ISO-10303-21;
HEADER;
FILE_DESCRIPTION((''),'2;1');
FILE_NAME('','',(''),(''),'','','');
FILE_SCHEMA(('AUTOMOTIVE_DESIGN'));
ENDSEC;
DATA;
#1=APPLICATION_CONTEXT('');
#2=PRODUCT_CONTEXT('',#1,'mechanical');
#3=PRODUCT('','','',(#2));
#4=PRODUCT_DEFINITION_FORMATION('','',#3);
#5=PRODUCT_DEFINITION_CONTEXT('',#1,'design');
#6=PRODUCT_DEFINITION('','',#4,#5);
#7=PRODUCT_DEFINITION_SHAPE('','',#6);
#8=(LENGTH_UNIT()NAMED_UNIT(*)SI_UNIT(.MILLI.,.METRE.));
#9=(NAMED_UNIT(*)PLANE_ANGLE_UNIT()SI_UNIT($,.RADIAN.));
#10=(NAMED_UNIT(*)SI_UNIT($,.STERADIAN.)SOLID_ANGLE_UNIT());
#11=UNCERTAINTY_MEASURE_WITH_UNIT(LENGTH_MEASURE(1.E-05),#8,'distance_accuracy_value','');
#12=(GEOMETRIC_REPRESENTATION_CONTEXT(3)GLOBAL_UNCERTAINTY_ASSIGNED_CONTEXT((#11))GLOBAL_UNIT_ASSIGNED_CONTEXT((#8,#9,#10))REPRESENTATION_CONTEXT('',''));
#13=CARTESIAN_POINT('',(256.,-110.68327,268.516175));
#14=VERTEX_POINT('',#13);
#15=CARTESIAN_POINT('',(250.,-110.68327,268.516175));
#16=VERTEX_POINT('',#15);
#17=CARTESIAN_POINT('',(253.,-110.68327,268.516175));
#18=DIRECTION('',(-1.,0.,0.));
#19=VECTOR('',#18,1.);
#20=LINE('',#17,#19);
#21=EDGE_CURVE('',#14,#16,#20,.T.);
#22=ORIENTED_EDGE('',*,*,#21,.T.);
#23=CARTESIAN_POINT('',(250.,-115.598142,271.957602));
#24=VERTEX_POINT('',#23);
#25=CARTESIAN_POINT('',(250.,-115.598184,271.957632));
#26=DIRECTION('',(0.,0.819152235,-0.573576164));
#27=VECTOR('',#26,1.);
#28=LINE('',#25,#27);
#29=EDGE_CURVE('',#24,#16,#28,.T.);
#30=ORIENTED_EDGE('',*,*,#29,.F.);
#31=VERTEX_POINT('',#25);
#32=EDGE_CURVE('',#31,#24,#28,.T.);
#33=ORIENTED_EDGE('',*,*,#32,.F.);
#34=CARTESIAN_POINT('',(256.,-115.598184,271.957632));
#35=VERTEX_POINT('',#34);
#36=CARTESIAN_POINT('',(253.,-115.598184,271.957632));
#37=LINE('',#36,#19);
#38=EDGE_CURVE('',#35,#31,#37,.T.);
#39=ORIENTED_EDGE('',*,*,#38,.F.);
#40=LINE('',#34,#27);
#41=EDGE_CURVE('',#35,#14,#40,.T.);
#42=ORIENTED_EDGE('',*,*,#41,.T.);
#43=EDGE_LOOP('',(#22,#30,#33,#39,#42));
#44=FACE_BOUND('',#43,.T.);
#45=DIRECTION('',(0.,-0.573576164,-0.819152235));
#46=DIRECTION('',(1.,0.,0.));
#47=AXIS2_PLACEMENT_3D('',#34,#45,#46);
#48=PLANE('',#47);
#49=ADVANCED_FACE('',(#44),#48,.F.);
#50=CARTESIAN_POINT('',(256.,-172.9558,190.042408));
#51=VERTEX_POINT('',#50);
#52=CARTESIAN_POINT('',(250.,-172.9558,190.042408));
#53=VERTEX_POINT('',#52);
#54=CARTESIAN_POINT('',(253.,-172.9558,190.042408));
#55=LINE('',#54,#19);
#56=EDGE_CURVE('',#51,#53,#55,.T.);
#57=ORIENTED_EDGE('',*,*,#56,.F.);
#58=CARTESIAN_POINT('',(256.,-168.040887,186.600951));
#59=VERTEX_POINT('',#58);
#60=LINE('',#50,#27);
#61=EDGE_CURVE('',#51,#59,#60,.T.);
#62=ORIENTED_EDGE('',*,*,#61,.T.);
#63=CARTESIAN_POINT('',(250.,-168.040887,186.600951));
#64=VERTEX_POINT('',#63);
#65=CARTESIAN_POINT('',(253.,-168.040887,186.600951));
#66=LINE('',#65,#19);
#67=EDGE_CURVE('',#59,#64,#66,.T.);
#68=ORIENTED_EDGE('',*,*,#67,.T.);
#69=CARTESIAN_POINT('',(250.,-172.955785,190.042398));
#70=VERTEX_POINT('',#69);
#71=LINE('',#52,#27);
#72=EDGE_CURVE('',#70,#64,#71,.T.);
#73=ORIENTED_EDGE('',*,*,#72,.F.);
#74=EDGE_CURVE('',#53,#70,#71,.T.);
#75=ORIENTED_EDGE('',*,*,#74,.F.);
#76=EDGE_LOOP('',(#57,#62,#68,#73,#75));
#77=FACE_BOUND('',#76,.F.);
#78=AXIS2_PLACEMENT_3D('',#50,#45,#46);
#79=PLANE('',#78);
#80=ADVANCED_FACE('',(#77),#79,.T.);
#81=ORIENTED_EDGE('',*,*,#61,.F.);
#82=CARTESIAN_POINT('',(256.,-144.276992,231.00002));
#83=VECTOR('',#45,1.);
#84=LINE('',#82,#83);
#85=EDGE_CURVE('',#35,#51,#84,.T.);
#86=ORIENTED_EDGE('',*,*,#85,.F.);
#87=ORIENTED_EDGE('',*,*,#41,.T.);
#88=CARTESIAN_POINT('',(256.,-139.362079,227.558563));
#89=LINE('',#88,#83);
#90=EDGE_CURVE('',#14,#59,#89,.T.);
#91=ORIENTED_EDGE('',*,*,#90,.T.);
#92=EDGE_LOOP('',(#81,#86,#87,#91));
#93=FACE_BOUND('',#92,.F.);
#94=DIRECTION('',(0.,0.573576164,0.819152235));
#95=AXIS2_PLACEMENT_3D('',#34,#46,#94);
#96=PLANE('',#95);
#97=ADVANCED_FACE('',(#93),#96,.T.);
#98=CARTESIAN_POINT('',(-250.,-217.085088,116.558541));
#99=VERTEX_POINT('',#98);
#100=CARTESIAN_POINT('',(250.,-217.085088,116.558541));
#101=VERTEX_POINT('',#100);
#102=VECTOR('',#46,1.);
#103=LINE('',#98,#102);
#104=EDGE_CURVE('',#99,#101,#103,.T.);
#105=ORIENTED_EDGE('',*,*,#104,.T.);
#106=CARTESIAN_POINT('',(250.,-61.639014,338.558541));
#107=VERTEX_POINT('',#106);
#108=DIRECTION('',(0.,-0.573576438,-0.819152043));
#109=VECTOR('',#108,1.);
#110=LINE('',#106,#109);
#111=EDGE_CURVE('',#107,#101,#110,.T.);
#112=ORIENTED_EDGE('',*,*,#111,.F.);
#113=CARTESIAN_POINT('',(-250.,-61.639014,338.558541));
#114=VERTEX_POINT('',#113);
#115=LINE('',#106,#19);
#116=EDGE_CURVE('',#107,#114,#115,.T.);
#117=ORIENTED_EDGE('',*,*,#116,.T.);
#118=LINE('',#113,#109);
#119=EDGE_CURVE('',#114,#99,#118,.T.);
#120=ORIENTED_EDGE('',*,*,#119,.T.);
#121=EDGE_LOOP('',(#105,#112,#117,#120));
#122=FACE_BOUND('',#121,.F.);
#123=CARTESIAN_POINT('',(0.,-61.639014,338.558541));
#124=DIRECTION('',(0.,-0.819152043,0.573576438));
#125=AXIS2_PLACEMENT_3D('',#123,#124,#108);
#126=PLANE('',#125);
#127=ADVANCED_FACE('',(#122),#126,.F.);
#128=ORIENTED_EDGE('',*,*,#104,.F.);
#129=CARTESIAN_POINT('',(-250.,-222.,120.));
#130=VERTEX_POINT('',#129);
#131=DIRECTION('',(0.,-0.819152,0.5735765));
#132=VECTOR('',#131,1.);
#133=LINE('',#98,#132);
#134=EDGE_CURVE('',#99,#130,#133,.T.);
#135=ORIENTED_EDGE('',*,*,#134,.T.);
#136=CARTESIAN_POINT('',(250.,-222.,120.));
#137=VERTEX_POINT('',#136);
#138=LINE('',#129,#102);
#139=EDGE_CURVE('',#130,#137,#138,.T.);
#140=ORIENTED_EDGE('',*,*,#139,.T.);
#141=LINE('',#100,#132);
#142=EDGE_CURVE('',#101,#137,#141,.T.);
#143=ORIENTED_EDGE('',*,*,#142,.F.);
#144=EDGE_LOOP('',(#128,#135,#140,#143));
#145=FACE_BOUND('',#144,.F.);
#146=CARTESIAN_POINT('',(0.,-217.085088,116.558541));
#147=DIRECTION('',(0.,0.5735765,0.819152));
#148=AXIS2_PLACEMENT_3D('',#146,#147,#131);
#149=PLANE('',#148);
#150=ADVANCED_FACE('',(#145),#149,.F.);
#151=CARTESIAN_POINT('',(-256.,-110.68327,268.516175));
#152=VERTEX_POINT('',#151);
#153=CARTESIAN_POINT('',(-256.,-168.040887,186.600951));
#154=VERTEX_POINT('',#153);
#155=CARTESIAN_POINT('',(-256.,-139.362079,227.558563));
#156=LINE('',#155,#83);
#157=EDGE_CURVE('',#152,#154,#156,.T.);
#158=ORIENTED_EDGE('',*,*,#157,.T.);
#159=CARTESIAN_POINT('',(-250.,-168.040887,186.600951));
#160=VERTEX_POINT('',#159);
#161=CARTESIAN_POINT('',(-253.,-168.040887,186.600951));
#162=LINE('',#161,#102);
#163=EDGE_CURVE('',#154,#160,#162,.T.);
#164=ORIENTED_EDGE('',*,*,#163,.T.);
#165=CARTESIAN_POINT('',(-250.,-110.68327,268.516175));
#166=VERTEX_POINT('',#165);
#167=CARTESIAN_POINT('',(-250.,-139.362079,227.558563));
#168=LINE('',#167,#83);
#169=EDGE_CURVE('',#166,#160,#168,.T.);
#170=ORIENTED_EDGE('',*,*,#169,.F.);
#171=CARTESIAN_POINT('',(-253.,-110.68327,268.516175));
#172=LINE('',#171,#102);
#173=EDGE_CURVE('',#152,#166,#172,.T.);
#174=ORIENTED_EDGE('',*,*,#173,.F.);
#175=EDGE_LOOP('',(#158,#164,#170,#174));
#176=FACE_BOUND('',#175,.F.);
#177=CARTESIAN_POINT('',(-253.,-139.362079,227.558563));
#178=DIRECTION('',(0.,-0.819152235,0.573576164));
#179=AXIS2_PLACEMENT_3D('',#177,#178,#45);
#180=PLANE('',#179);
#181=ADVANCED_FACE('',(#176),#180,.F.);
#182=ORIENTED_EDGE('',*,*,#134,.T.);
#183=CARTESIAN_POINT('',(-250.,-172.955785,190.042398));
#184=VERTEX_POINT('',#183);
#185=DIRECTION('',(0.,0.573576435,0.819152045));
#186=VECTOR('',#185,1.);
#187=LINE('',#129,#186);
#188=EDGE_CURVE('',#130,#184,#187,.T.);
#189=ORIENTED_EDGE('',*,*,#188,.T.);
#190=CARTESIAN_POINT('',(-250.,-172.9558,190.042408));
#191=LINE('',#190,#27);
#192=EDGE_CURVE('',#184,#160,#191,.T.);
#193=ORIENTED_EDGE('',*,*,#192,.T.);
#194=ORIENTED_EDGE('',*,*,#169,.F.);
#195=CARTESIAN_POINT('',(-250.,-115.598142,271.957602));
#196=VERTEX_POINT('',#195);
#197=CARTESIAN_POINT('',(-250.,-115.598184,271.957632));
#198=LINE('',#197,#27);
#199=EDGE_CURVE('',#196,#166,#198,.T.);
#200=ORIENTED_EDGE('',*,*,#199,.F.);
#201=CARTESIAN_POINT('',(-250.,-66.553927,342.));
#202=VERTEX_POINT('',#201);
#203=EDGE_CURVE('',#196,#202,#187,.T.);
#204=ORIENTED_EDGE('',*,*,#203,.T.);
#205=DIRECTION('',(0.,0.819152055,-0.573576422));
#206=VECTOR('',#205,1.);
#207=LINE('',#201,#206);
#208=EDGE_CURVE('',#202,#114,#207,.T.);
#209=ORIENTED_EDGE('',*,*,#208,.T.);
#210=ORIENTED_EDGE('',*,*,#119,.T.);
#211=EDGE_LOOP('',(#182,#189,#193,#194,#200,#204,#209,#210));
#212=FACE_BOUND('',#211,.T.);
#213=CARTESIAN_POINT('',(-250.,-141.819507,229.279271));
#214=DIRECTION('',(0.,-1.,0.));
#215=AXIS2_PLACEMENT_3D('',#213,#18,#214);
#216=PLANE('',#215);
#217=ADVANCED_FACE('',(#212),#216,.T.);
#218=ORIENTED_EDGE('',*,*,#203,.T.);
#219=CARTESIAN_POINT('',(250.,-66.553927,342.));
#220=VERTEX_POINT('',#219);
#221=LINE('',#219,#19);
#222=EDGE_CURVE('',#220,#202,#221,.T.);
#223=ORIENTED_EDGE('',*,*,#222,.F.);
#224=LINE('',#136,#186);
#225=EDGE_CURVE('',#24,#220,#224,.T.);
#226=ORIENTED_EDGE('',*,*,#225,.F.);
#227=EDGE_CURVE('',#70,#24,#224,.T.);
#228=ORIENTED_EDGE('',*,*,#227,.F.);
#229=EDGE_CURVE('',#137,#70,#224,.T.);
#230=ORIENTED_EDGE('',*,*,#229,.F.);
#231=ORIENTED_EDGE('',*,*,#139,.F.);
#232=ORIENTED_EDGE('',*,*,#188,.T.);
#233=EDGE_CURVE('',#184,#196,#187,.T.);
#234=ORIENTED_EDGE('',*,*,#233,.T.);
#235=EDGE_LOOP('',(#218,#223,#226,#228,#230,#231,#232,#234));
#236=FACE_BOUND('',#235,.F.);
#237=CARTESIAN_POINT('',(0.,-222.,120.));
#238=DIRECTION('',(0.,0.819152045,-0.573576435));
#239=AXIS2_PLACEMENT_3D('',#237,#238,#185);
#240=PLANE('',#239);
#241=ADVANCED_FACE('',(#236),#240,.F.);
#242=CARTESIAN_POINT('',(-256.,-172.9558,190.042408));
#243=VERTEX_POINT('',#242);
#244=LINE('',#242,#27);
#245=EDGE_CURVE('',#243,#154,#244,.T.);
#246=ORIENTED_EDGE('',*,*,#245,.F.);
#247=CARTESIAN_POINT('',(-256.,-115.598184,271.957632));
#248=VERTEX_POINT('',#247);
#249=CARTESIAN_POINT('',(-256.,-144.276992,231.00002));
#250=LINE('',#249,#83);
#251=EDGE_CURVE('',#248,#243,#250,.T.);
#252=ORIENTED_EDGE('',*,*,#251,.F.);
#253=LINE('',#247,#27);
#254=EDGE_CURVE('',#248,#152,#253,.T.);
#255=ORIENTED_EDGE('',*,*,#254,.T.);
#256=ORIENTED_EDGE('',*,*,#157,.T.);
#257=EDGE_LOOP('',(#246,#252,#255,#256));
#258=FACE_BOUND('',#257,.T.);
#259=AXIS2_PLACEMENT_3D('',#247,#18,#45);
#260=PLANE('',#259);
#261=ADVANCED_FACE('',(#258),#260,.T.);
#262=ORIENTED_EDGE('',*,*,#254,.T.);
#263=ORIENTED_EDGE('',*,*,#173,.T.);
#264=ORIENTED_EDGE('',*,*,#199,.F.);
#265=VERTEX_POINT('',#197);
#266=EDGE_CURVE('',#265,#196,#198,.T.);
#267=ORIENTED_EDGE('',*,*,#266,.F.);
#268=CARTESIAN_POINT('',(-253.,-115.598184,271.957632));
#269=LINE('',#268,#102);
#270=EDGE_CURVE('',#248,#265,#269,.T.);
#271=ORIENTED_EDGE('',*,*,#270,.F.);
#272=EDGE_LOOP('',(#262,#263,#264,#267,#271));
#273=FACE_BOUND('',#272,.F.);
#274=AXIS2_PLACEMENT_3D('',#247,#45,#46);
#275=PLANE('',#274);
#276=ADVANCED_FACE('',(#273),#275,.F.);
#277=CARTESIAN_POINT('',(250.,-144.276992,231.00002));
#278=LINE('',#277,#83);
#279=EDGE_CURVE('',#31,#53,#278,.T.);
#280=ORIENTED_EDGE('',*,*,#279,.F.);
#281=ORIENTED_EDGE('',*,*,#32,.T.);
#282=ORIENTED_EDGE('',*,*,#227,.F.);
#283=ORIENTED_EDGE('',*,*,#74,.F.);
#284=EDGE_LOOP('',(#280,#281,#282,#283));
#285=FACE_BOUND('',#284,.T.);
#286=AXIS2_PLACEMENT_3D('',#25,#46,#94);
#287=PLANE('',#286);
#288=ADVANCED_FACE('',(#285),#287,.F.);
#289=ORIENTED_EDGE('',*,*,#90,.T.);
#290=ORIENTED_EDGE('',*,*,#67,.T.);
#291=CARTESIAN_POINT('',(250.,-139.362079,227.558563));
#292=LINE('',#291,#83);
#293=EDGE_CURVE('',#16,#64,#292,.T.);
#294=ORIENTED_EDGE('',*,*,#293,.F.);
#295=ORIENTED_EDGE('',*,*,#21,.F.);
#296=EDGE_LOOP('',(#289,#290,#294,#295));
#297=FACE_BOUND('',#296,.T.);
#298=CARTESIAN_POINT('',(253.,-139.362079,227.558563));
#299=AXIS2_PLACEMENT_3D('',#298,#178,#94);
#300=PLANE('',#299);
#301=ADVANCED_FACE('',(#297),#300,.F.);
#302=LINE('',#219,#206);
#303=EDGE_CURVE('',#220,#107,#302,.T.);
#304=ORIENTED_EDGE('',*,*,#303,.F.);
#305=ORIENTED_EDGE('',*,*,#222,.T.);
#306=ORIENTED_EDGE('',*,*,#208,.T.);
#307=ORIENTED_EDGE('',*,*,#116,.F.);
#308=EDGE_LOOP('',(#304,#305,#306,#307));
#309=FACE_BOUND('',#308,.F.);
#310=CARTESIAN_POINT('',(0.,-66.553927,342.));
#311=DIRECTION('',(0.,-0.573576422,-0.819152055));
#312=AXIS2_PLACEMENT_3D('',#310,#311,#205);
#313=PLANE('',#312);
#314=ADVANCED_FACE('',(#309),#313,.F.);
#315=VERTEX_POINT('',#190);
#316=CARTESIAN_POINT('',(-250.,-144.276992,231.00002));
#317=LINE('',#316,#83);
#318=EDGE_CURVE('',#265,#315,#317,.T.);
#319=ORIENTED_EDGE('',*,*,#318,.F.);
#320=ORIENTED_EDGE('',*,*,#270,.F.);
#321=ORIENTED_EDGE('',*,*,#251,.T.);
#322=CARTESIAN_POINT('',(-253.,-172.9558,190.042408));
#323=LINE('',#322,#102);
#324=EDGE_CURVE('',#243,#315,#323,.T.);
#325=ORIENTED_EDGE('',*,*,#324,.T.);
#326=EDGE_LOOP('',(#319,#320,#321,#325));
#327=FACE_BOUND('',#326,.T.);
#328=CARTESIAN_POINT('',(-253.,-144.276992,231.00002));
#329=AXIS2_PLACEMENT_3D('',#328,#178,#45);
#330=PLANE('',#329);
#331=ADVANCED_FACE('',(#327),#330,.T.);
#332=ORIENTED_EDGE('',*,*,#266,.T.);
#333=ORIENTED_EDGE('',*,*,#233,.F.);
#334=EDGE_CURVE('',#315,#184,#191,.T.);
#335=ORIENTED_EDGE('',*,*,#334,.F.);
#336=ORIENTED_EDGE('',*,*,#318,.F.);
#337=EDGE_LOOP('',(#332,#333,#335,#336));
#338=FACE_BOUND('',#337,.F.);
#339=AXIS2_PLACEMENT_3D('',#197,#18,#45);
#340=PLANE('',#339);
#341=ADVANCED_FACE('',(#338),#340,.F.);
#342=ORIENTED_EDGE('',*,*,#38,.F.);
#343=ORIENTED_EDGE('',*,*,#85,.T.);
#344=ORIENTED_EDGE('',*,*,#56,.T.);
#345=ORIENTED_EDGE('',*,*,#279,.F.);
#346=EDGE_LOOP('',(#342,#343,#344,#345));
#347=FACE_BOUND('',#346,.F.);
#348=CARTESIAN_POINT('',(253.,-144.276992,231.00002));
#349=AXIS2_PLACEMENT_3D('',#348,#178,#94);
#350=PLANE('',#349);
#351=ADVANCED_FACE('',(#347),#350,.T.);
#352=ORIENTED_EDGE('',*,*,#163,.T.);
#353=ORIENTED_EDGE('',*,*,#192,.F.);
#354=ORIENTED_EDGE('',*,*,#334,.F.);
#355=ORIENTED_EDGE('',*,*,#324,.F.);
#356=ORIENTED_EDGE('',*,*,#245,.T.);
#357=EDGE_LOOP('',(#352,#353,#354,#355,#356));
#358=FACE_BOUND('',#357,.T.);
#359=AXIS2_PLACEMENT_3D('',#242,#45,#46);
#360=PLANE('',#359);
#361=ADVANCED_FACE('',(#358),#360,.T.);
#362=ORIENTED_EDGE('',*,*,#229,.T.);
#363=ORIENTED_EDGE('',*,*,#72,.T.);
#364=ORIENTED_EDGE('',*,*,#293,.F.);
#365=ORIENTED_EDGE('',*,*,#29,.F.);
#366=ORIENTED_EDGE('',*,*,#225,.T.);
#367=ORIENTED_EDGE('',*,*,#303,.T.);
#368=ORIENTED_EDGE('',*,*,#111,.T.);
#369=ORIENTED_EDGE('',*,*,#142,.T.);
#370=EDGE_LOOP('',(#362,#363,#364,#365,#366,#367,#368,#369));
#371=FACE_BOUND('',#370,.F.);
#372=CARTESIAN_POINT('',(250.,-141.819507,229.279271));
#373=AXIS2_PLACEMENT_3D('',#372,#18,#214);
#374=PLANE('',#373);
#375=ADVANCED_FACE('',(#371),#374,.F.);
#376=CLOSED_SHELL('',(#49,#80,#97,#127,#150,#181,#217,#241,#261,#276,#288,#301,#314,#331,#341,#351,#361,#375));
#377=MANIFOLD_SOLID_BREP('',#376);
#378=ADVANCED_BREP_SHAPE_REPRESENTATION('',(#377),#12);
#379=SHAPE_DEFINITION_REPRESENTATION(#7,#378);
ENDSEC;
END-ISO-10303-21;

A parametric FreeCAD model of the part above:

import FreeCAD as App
import Part
import Sketcher

V = App.Vector
Q = App.Units.Quantity

doc = App.newDocument("Part")
body = doc.addObject("PartDesign::Body", "Body")

sketch1 = body.newObject("Sketcher::SketchObject", "Sketch")
sketch1.AttachmentSupport = (doc.getObject("YZ_Plane"), [""])
sketch1.MapMode = "FlatFace"
sketch1.addGeometry([
    Part.LineSegment(V(-67, 342, 0), V(-222, 120, 0)),
    Part.LineSegment(V(-222, 120, 0), V(-217, 117, 0)),
    Part.LineSegment(V(-217, 117, 0), V(-62, 339, 0)),
    Part.LineSegment(V(-62, 339, 0), V(-67, 342, 0)),
], False)
sketch1.addConstraint([
    Sketcher.Constraint("Coincident", 0, 2, 1, 1),
    Sketcher.Constraint("Coincident", 1, 2, 2, 1),
    Sketcher.Constraint("Coincident", 2, 2, 3, 1),
    Sketcher.Constraint("Coincident", 3, 2, 0, 1),
    Sketcher.Constraint("Perpendicular", 0, 1),
    Sketcher.Constraint("Perpendicular", 1, 2),
    Sketcher.Constraint("Perpendicular", 2, 3),
    Sketcher.Constraint("Angle", 0, Q("-125 deg")),
    Sketcher.Constraint("Distance", 1, Q("6 mm")),
    Sketcher.Constraint("DistanceX", 0, 2, -1, 1, Q("222 mm")),
    Sketcher.Constraint("DistanceY", -1, 1, 0, 2, Q("120 mm")),
    Sketcher.Constraint("DistanceY", -1, 1, 3, 2, Q("342 mm")),
])
pad1 = body.newObject("PartDesign::Pad", "Pad")
pad1.Profile = sketch1
pad1.Length = 500
pad1.Midplane = True

sketch2 = body.newObject("Sketcher::SketchObject", "Sketch001")
sketch2.Placement = App.Placement(V(0, -205.345793, 143.784672), App.Rotation(V(0, -0.573576164, -0.819152235), V(1, 0, 0), V(0, -0.819152235, 0.573576164), "ZXY"))
sketch2.addGeometry([
    Part.LineSegment(V(-156, -250, 0), V(-156, -256, 0)),
    Part.LineSegment(V(-156, -256, 0), V(-56, -256, 0)),
    Part.LineSegment(V(-56, -256, 0), V(-56, -250, 0)),
    Part.LineSegment(V(-56, -250, 0), V(-156, -250, 0)),
], False)
sketch2.addConstraint([
    Sketcher.Constraint("Coincident", 0, 2, 1, 1),
    Sketcher.Constraint("Coincident", 1, 2, 2, 1),
    Sketcher.Constraint("Coincident", 2, 2, 3, 1),
    Sketcher.Constraint("Coincident", 3, 2, 0, 1),
    Sketcher.Constraint("Vertical", 0),
    Sketcher.Constraint("Horizontal", 1),
    Sketcher.Constraint("Vertical", 2),
    Sketcher.Constraint("Horizontal", 3),
    Sketcher.Constraint("DistanceX", 1, 1, 1, 2, Q("100 mm")),
    Sketcher.Constraint("DistanceY", 0, 2, 0, 1, Q("6 mm")),
    Sketcher.Constraint("DistanceY", 0, 2, -1, 1, Q("256 mm")),
    Sketcher.Constraint("DistanceX", 0, 2, -1, 1, Q("156.470256 mm")),
])
pad2 = body.newObject("PartDesign::Pad", "Pad001")
pad2.Profile = sketch2
pad2.Length = 6
pad2.Reversed = True
doc.recompute()

mirrored = body.newObject("PartDesign::Mirrored", "Mirrored")
mirrored.Originals = [pad2]
mirrored.MirrorPlane = (doc.getObject("YZ_Plane"), [""])
body.Tip = mirrored

doc.recompute()
